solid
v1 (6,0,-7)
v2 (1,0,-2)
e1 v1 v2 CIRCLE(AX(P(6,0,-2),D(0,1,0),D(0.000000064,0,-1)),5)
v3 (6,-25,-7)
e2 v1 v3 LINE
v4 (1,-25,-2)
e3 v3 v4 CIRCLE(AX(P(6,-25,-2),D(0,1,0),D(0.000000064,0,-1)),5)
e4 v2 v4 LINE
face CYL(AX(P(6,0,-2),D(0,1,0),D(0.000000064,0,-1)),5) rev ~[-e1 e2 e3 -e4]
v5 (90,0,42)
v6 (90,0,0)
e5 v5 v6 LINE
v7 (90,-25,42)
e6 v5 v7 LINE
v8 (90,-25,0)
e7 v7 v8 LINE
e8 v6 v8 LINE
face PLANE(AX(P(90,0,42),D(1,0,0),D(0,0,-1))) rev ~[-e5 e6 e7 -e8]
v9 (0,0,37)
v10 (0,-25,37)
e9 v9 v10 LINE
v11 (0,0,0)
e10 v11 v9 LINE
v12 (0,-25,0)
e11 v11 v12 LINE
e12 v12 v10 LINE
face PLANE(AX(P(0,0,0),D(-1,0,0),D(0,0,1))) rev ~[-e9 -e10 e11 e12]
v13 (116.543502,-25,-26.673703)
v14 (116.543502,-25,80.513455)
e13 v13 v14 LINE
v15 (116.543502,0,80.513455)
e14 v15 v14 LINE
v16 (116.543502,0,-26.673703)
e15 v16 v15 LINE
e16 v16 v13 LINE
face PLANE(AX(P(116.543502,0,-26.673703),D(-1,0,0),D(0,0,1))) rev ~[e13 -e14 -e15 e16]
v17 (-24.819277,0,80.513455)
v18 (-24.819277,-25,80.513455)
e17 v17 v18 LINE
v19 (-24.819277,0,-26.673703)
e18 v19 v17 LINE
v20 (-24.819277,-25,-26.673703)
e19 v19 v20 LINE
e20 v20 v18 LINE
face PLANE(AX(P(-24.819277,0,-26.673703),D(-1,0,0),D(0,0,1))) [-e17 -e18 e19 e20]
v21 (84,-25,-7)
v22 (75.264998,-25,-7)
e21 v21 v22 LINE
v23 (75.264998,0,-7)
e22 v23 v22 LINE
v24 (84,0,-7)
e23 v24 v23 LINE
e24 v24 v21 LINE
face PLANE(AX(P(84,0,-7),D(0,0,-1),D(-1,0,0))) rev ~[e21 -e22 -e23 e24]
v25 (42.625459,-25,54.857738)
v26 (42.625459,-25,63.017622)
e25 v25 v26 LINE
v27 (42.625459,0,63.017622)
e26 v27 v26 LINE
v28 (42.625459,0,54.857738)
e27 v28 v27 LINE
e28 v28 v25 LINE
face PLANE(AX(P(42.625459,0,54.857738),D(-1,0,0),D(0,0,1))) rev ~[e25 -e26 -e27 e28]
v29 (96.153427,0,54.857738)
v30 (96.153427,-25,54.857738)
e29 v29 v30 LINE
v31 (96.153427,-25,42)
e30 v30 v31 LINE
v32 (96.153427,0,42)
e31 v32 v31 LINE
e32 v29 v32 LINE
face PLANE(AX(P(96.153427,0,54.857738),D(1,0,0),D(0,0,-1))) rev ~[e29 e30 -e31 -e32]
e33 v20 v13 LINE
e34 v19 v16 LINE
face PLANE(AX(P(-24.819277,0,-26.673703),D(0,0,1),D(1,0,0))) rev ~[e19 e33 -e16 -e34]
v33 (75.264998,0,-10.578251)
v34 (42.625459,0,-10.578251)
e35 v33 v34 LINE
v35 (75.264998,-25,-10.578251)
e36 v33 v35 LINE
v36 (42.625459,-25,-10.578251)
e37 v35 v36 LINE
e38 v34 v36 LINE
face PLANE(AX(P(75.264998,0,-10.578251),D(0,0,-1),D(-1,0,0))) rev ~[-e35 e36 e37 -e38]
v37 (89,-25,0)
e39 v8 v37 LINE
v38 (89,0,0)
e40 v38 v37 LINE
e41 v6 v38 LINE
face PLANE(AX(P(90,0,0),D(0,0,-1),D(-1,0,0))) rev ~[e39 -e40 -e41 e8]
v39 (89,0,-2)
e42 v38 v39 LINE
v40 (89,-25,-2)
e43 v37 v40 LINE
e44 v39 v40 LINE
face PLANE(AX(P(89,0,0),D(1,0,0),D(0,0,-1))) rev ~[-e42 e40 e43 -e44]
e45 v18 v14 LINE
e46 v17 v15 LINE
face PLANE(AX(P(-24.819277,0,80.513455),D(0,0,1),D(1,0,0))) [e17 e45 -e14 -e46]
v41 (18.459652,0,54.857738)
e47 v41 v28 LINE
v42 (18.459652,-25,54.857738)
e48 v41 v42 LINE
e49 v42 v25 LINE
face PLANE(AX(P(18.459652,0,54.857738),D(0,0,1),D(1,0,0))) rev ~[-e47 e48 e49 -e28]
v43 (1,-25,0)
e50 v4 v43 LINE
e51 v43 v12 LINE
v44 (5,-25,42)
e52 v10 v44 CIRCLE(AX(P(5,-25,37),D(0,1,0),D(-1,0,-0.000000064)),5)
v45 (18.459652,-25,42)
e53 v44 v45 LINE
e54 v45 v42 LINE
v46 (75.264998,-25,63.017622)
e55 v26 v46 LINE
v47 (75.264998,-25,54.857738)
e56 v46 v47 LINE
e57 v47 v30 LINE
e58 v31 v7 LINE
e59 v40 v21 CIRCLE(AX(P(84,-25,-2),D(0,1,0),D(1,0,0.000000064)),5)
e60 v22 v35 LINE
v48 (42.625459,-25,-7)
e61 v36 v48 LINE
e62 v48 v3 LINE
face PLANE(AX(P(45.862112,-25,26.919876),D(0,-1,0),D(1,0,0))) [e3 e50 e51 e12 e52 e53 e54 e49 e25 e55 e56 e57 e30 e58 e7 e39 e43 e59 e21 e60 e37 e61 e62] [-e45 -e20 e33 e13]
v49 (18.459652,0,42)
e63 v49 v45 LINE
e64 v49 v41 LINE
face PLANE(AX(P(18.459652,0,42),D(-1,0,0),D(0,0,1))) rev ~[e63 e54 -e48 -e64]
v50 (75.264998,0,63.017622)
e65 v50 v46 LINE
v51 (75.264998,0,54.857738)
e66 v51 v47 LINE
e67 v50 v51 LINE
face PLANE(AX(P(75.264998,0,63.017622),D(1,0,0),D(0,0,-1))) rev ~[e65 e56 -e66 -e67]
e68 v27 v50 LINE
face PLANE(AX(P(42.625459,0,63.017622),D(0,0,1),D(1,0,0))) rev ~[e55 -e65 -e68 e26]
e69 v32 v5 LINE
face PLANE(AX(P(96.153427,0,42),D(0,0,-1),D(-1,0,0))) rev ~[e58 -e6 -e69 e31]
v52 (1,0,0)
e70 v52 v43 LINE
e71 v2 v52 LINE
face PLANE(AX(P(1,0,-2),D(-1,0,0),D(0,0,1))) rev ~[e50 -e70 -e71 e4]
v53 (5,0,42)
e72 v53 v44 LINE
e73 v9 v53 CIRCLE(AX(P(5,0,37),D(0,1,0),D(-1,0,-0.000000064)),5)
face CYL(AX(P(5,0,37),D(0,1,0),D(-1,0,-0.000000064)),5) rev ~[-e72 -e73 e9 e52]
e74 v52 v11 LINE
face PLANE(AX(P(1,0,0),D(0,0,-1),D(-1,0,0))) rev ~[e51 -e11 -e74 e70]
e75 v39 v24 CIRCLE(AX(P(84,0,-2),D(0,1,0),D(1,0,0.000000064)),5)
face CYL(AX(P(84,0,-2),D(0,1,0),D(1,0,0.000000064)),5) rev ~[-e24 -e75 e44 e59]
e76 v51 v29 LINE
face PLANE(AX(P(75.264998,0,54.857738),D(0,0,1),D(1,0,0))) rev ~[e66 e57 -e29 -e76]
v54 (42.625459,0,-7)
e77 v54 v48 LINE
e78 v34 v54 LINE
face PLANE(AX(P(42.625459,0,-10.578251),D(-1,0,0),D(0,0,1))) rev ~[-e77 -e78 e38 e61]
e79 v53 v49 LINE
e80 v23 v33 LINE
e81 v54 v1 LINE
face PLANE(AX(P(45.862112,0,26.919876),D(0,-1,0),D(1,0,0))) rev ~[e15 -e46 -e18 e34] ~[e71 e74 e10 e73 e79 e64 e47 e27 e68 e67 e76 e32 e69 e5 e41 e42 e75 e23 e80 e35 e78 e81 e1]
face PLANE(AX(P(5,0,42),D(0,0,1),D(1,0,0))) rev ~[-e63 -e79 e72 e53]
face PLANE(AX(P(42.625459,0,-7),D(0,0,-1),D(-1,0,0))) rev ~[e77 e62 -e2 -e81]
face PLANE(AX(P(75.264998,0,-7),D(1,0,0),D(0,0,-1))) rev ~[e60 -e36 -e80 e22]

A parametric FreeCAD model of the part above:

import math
import FreeCAD as App
import Part
import Sketcher

V = App.Vector
Q = App.Units.Quantity

doc = App.newDocument("Part")
body = doc.addObject("PartDesign::Body", "Body")

# Sketch on XZ plane
sketch1 = body.newObject("Sketcher::SketchObject", "Sketch")
sketch1.AttachmentSupport = (doc.getObject("XZ_Plane"), [""])
sketch1.MapMode = "FlatFace"
sketch1.addGeometry([
    Part.LineSegment(V(-24.8, 80.5, 0), V(-24.8, -26.7, 0)),  # 0
    Part.LineSegment(V(-24.8, -26.7, 0), V(116.5, -26.7, 0)),  # 1
    Part.LineSegment(V(116.5, -26.7, 0), V(116.5, 80.5, 0)),  # 2
    Part.LineSegment(V(116.5, 80.5, 0), V(-24.8, 80.5, 0)),  # 3
    Part.LineSegment(V(1, -2, 0), V(1, 0, 0)),  # 4
    Part.LineSegment(V(1, 0, 0), V(0, 0, 0)),  # 5
    Part.LineSegment(V(0, 0, 0), V(0, 37, 0)),  # 6
    Part.ArcOfCircle(Part.Circle(V(5, 37, 0), V(0, 0, 1), 5), math.radians(90), math.radians(180)),  # 7
    Part.LineSegment(V(5, 42, 0), V(18.5, 42, 0)),  # 8
    Part.LineSegment(V(18.5, 42, 0), V(18.5, 54.9, 0)),  # 9
    Part.LineSegment(V(18.5, 54.9, 0), V(42.6, 54.9, 0)),  # 10
    Part.LineSegment(V(42.6, 54.9, 0), V(42.6, 63, 0)),  # 11
    Part.LineSegment(V(42.6, 63, 0), V(75.3, 63, 0)),  # 12
    Part.LineSegment(V(75.3, 63, 0), V(75.3, 54.9, 0)),  # 13
    Part.LineSegment(V(75.3, 54.9, 0), V(96.2, 54.9, 0)),  # 14
    Part.LineSegment(V(96.2, 54.9, 0), V(96.2, 42, 0)),  # 15
    Part.LineSegment(V(96.2, 42, 0), V(90, 42, 0)),  # 16
    Part.LineSegment(V(90, 42, 0), V(90, 0, 0)),  # 17
    Part.LineSegment(V(90, 0, 0), V(89, 0, 0)),  # 18
    Part.LineSegment(V(89, 0, 0), V(89, -2, 0)),  # 19
    Part.ArcOfCircle(Part.Circle(V(84, -2, 0), V(0, 0, 1), 5), math.radians(-90), math.radians(0)),  # 20
    Part.LineSegment(V(84, -7, 0), V(75.3, -7, 0)),  # 21
    Part.LineSegment(V(75.3, -7, 0), V(75.3, -10.6, 0)),  # 22
    Part.LineSegment(V(75.3, -10.6, 0), V(42.6, -10.6, 0)),  # 23
    Part.LineSegment(V(42.6, -10.6, 0), V(42.6, -7, 0)),  # 24
    Part.LineSegment(V(42.6, -7, 0), V(6, -7, 0)),  # 25
    Part.ArcOfCircle(Part.Circle(V(6, -2, 0), V(0, 0, 1), 5), math.radians(180), math.radians(270)),  # 26
], False)
sketch1.addConstraint([
    Sketcher.Constraint("Coincident", 0, 2, 1, 1),
    Sketcher.Constraint("Coincident", 1, 2, 2, 1),
    Sketcher.Constraint("Coincident", 2, 2, 3, 1),
    Sketcher.Constraint("Coincident", 3, 2, 0, 1),
    Sketcher.Constraint("Coincident", 4, 2, 5, 1),
    Sketcher.Constraint("Coincident", 5, 2, 6, 1),
    Sketcher.Constraint("Tangent", 6, 2, 7, 2),
    Sketcher.Constraint("Tangent", 7, 1, 8, 1),
    Sketcher.Constraint("Coincident", 8, 2, 9, 1),
    Sketcher.Constraint("Coincident", 9, 2, 10, 1),
    Sketcher.Constraint("Coincident", 10, 2, 11, 1),
    Sketcher.Constraint("Coincident", 11, 2, 12, 1),
    Sketcher.Constraint("Coincident", 12, 2, 13, 1),
    Sketcher.Constraint("Coincident", 13, 2, 14, 1),
    Sketcher.Constraint("Coincident", 14, 2, 15, 1),
    Sketcher.Constraint("Coincident", 15, 2, 16, 1),
    Sketcher.Constraint("Coincident", 16, 2, 17, 1),
    Sketcher.Constraint("Coincident", 17, 2, 18, 1),
    Sketcher.Constraint("Coincident", 18, 2, 19, 1),
    Sketcher.Constraint("Tangent", 19, 2, 20, 2),
    Sketcher.Constraint("Tangent", 20, 1, 21, 1),
    Sketcher.Constraint("Coincident", 21, 2, 22, 1),
    Sketcher.Constraint("Coincident", 22, 2, 23, 1),
    Sketcher.Constraint("Coincident", 23, 2, 24, 1),
    Sketcher.Constraint("Coincident", 24, 2, 25, 1),
    Sketcher.Constraint("Tangent", 25, 2, 26, 2),
    Sketcher.Constraint("Tangent", 26, 1, 4, 1),
    Sketcher.Constraint("Vertical", 0),
    Sketcher.Constraint("Horizontal", 1),
    Sketcher.Constraint("Vertical", 2),
    Sketcher.Constraint("Horizontal", 3),
    Sketcher.Constraint("Vertical", 4),
    Sketcher.Constraint("Horizontal", 5),
    Sketcher.Constraint("Vertical", 6),
    Sketcher.Constraint("Horizontal", 8),
    Sketcher.Constraint("Vertical", 9),
    Sketcher.Constraint("Horizontal", 10),
    Sketcher.Constraint("Vertical", 11),
    Sketcher.Constraint("Horizontal", 12),
    Sketcher.Constraint("Vertical", 13),
    Sketcher.Constraint("Horizontal", 14),
    Sketcher.Constraint("Vertical", 15),
    Sketcher.Constraint("Horizontal", 16),
    Sketcher.Constraint("Vertical", 17),
    Sketcher.Constraint("Horizontal", 18),
    Sketcher.Constraint("Vertical", 19),
    Sketcher.Constraint("Horizontal", 21),
    Sketcher.Constraint("Vertical", 22),
    Sketcher.Constraint("Horizontal", 23),
    Sketcher.Constraint("Vertical", 24),
    Sketcher.Constraint("Horizontal", 25),
    Sketcher.Constraint("Coincident", 5, 2, -1, 1),
    Sketcher.Constraint("Equal", 7, 20),
    Sketcher.Constraint("Equal", 20, 26),
    Sketcher.Constraint("PointOnObject", 17, 2, -1),
    Sketcher.Constraint("Horizontal", 20, 3, 26, 3),
    Sketcher.Constraint("Horizontal", 10, 2, 13, 2),
    Sketcher.Constraint("Horizontal", 8, 2, 15, 2),
    Sketcher.Constraint("Vertical", 13, 2, 21, 2),
    Sketcher.Constraint("Vertical", 11, 2, 23, 2),
    Sketcher.Constraint("Equal", 5, 18),
    Sketcher.Constraint("Radius", 7, Q("5 mm")),
    Sketcher.Constraint("DistanceX", 5, 2, 5, 1, Q("1 mm")),
    Sketcher.Constraint("DistanceY", 4, 1, 4, 2, Q("2 mm")),
    Sketcher.Constraint("DistanceY", 6, 1, 6, 2, Q("37 mm")),
    Sketcher.Constraint("DistanceX", -1, 1, 20, 3, Q("84 mm")),
    Sketcher.Constraint("DistanceX", 21, 2, 21, 1, Q("8.735002 mm")),
    Sketcher.Constraint("DistanceX", 1, 1, 1, 2, Q("141.362779 mm")),
    Sketcher.Constraint("DistanceX", 8, 1, 8, 2, Q("13.459652 mm")),
    Sketcher.Constraint("DistanceX", 12, 1, 12, 2, Q("32.639539 mm")),
    Sketcher.Constraint("DistanceX", 14, 1, 14, 2, Q("20.888429 mm")),
    Sketcher.Constraint("DistanceY", 22, 2, 22, 1, Q("3.578251 mm")),
    Sketcher.Constraint("DistanceX", -1, 1, 1, 2, Q("116.543502 mm")),
    Sketcher.Constraint("DistanceY", 0, 2, 0, 1, Q("107.187158 mm")),
    Sketcher.Constraint("DistanceY", 9, 1, 9, 2, Q("12.857738 mm")),
    Sketcher.Constraint("DistanceY", 11, 1, 11, 2, Q("8.159884 mm")),
    Sketcher.Constraint("DistanceY", 0, 2, -1, 1, Q("26.673703 mm")),
])
pad1 = body.newObject("PartDesign::Pad", "Pad")
pad1.Profile = sketch1
pad1.Length = 25

doc.recompute()
